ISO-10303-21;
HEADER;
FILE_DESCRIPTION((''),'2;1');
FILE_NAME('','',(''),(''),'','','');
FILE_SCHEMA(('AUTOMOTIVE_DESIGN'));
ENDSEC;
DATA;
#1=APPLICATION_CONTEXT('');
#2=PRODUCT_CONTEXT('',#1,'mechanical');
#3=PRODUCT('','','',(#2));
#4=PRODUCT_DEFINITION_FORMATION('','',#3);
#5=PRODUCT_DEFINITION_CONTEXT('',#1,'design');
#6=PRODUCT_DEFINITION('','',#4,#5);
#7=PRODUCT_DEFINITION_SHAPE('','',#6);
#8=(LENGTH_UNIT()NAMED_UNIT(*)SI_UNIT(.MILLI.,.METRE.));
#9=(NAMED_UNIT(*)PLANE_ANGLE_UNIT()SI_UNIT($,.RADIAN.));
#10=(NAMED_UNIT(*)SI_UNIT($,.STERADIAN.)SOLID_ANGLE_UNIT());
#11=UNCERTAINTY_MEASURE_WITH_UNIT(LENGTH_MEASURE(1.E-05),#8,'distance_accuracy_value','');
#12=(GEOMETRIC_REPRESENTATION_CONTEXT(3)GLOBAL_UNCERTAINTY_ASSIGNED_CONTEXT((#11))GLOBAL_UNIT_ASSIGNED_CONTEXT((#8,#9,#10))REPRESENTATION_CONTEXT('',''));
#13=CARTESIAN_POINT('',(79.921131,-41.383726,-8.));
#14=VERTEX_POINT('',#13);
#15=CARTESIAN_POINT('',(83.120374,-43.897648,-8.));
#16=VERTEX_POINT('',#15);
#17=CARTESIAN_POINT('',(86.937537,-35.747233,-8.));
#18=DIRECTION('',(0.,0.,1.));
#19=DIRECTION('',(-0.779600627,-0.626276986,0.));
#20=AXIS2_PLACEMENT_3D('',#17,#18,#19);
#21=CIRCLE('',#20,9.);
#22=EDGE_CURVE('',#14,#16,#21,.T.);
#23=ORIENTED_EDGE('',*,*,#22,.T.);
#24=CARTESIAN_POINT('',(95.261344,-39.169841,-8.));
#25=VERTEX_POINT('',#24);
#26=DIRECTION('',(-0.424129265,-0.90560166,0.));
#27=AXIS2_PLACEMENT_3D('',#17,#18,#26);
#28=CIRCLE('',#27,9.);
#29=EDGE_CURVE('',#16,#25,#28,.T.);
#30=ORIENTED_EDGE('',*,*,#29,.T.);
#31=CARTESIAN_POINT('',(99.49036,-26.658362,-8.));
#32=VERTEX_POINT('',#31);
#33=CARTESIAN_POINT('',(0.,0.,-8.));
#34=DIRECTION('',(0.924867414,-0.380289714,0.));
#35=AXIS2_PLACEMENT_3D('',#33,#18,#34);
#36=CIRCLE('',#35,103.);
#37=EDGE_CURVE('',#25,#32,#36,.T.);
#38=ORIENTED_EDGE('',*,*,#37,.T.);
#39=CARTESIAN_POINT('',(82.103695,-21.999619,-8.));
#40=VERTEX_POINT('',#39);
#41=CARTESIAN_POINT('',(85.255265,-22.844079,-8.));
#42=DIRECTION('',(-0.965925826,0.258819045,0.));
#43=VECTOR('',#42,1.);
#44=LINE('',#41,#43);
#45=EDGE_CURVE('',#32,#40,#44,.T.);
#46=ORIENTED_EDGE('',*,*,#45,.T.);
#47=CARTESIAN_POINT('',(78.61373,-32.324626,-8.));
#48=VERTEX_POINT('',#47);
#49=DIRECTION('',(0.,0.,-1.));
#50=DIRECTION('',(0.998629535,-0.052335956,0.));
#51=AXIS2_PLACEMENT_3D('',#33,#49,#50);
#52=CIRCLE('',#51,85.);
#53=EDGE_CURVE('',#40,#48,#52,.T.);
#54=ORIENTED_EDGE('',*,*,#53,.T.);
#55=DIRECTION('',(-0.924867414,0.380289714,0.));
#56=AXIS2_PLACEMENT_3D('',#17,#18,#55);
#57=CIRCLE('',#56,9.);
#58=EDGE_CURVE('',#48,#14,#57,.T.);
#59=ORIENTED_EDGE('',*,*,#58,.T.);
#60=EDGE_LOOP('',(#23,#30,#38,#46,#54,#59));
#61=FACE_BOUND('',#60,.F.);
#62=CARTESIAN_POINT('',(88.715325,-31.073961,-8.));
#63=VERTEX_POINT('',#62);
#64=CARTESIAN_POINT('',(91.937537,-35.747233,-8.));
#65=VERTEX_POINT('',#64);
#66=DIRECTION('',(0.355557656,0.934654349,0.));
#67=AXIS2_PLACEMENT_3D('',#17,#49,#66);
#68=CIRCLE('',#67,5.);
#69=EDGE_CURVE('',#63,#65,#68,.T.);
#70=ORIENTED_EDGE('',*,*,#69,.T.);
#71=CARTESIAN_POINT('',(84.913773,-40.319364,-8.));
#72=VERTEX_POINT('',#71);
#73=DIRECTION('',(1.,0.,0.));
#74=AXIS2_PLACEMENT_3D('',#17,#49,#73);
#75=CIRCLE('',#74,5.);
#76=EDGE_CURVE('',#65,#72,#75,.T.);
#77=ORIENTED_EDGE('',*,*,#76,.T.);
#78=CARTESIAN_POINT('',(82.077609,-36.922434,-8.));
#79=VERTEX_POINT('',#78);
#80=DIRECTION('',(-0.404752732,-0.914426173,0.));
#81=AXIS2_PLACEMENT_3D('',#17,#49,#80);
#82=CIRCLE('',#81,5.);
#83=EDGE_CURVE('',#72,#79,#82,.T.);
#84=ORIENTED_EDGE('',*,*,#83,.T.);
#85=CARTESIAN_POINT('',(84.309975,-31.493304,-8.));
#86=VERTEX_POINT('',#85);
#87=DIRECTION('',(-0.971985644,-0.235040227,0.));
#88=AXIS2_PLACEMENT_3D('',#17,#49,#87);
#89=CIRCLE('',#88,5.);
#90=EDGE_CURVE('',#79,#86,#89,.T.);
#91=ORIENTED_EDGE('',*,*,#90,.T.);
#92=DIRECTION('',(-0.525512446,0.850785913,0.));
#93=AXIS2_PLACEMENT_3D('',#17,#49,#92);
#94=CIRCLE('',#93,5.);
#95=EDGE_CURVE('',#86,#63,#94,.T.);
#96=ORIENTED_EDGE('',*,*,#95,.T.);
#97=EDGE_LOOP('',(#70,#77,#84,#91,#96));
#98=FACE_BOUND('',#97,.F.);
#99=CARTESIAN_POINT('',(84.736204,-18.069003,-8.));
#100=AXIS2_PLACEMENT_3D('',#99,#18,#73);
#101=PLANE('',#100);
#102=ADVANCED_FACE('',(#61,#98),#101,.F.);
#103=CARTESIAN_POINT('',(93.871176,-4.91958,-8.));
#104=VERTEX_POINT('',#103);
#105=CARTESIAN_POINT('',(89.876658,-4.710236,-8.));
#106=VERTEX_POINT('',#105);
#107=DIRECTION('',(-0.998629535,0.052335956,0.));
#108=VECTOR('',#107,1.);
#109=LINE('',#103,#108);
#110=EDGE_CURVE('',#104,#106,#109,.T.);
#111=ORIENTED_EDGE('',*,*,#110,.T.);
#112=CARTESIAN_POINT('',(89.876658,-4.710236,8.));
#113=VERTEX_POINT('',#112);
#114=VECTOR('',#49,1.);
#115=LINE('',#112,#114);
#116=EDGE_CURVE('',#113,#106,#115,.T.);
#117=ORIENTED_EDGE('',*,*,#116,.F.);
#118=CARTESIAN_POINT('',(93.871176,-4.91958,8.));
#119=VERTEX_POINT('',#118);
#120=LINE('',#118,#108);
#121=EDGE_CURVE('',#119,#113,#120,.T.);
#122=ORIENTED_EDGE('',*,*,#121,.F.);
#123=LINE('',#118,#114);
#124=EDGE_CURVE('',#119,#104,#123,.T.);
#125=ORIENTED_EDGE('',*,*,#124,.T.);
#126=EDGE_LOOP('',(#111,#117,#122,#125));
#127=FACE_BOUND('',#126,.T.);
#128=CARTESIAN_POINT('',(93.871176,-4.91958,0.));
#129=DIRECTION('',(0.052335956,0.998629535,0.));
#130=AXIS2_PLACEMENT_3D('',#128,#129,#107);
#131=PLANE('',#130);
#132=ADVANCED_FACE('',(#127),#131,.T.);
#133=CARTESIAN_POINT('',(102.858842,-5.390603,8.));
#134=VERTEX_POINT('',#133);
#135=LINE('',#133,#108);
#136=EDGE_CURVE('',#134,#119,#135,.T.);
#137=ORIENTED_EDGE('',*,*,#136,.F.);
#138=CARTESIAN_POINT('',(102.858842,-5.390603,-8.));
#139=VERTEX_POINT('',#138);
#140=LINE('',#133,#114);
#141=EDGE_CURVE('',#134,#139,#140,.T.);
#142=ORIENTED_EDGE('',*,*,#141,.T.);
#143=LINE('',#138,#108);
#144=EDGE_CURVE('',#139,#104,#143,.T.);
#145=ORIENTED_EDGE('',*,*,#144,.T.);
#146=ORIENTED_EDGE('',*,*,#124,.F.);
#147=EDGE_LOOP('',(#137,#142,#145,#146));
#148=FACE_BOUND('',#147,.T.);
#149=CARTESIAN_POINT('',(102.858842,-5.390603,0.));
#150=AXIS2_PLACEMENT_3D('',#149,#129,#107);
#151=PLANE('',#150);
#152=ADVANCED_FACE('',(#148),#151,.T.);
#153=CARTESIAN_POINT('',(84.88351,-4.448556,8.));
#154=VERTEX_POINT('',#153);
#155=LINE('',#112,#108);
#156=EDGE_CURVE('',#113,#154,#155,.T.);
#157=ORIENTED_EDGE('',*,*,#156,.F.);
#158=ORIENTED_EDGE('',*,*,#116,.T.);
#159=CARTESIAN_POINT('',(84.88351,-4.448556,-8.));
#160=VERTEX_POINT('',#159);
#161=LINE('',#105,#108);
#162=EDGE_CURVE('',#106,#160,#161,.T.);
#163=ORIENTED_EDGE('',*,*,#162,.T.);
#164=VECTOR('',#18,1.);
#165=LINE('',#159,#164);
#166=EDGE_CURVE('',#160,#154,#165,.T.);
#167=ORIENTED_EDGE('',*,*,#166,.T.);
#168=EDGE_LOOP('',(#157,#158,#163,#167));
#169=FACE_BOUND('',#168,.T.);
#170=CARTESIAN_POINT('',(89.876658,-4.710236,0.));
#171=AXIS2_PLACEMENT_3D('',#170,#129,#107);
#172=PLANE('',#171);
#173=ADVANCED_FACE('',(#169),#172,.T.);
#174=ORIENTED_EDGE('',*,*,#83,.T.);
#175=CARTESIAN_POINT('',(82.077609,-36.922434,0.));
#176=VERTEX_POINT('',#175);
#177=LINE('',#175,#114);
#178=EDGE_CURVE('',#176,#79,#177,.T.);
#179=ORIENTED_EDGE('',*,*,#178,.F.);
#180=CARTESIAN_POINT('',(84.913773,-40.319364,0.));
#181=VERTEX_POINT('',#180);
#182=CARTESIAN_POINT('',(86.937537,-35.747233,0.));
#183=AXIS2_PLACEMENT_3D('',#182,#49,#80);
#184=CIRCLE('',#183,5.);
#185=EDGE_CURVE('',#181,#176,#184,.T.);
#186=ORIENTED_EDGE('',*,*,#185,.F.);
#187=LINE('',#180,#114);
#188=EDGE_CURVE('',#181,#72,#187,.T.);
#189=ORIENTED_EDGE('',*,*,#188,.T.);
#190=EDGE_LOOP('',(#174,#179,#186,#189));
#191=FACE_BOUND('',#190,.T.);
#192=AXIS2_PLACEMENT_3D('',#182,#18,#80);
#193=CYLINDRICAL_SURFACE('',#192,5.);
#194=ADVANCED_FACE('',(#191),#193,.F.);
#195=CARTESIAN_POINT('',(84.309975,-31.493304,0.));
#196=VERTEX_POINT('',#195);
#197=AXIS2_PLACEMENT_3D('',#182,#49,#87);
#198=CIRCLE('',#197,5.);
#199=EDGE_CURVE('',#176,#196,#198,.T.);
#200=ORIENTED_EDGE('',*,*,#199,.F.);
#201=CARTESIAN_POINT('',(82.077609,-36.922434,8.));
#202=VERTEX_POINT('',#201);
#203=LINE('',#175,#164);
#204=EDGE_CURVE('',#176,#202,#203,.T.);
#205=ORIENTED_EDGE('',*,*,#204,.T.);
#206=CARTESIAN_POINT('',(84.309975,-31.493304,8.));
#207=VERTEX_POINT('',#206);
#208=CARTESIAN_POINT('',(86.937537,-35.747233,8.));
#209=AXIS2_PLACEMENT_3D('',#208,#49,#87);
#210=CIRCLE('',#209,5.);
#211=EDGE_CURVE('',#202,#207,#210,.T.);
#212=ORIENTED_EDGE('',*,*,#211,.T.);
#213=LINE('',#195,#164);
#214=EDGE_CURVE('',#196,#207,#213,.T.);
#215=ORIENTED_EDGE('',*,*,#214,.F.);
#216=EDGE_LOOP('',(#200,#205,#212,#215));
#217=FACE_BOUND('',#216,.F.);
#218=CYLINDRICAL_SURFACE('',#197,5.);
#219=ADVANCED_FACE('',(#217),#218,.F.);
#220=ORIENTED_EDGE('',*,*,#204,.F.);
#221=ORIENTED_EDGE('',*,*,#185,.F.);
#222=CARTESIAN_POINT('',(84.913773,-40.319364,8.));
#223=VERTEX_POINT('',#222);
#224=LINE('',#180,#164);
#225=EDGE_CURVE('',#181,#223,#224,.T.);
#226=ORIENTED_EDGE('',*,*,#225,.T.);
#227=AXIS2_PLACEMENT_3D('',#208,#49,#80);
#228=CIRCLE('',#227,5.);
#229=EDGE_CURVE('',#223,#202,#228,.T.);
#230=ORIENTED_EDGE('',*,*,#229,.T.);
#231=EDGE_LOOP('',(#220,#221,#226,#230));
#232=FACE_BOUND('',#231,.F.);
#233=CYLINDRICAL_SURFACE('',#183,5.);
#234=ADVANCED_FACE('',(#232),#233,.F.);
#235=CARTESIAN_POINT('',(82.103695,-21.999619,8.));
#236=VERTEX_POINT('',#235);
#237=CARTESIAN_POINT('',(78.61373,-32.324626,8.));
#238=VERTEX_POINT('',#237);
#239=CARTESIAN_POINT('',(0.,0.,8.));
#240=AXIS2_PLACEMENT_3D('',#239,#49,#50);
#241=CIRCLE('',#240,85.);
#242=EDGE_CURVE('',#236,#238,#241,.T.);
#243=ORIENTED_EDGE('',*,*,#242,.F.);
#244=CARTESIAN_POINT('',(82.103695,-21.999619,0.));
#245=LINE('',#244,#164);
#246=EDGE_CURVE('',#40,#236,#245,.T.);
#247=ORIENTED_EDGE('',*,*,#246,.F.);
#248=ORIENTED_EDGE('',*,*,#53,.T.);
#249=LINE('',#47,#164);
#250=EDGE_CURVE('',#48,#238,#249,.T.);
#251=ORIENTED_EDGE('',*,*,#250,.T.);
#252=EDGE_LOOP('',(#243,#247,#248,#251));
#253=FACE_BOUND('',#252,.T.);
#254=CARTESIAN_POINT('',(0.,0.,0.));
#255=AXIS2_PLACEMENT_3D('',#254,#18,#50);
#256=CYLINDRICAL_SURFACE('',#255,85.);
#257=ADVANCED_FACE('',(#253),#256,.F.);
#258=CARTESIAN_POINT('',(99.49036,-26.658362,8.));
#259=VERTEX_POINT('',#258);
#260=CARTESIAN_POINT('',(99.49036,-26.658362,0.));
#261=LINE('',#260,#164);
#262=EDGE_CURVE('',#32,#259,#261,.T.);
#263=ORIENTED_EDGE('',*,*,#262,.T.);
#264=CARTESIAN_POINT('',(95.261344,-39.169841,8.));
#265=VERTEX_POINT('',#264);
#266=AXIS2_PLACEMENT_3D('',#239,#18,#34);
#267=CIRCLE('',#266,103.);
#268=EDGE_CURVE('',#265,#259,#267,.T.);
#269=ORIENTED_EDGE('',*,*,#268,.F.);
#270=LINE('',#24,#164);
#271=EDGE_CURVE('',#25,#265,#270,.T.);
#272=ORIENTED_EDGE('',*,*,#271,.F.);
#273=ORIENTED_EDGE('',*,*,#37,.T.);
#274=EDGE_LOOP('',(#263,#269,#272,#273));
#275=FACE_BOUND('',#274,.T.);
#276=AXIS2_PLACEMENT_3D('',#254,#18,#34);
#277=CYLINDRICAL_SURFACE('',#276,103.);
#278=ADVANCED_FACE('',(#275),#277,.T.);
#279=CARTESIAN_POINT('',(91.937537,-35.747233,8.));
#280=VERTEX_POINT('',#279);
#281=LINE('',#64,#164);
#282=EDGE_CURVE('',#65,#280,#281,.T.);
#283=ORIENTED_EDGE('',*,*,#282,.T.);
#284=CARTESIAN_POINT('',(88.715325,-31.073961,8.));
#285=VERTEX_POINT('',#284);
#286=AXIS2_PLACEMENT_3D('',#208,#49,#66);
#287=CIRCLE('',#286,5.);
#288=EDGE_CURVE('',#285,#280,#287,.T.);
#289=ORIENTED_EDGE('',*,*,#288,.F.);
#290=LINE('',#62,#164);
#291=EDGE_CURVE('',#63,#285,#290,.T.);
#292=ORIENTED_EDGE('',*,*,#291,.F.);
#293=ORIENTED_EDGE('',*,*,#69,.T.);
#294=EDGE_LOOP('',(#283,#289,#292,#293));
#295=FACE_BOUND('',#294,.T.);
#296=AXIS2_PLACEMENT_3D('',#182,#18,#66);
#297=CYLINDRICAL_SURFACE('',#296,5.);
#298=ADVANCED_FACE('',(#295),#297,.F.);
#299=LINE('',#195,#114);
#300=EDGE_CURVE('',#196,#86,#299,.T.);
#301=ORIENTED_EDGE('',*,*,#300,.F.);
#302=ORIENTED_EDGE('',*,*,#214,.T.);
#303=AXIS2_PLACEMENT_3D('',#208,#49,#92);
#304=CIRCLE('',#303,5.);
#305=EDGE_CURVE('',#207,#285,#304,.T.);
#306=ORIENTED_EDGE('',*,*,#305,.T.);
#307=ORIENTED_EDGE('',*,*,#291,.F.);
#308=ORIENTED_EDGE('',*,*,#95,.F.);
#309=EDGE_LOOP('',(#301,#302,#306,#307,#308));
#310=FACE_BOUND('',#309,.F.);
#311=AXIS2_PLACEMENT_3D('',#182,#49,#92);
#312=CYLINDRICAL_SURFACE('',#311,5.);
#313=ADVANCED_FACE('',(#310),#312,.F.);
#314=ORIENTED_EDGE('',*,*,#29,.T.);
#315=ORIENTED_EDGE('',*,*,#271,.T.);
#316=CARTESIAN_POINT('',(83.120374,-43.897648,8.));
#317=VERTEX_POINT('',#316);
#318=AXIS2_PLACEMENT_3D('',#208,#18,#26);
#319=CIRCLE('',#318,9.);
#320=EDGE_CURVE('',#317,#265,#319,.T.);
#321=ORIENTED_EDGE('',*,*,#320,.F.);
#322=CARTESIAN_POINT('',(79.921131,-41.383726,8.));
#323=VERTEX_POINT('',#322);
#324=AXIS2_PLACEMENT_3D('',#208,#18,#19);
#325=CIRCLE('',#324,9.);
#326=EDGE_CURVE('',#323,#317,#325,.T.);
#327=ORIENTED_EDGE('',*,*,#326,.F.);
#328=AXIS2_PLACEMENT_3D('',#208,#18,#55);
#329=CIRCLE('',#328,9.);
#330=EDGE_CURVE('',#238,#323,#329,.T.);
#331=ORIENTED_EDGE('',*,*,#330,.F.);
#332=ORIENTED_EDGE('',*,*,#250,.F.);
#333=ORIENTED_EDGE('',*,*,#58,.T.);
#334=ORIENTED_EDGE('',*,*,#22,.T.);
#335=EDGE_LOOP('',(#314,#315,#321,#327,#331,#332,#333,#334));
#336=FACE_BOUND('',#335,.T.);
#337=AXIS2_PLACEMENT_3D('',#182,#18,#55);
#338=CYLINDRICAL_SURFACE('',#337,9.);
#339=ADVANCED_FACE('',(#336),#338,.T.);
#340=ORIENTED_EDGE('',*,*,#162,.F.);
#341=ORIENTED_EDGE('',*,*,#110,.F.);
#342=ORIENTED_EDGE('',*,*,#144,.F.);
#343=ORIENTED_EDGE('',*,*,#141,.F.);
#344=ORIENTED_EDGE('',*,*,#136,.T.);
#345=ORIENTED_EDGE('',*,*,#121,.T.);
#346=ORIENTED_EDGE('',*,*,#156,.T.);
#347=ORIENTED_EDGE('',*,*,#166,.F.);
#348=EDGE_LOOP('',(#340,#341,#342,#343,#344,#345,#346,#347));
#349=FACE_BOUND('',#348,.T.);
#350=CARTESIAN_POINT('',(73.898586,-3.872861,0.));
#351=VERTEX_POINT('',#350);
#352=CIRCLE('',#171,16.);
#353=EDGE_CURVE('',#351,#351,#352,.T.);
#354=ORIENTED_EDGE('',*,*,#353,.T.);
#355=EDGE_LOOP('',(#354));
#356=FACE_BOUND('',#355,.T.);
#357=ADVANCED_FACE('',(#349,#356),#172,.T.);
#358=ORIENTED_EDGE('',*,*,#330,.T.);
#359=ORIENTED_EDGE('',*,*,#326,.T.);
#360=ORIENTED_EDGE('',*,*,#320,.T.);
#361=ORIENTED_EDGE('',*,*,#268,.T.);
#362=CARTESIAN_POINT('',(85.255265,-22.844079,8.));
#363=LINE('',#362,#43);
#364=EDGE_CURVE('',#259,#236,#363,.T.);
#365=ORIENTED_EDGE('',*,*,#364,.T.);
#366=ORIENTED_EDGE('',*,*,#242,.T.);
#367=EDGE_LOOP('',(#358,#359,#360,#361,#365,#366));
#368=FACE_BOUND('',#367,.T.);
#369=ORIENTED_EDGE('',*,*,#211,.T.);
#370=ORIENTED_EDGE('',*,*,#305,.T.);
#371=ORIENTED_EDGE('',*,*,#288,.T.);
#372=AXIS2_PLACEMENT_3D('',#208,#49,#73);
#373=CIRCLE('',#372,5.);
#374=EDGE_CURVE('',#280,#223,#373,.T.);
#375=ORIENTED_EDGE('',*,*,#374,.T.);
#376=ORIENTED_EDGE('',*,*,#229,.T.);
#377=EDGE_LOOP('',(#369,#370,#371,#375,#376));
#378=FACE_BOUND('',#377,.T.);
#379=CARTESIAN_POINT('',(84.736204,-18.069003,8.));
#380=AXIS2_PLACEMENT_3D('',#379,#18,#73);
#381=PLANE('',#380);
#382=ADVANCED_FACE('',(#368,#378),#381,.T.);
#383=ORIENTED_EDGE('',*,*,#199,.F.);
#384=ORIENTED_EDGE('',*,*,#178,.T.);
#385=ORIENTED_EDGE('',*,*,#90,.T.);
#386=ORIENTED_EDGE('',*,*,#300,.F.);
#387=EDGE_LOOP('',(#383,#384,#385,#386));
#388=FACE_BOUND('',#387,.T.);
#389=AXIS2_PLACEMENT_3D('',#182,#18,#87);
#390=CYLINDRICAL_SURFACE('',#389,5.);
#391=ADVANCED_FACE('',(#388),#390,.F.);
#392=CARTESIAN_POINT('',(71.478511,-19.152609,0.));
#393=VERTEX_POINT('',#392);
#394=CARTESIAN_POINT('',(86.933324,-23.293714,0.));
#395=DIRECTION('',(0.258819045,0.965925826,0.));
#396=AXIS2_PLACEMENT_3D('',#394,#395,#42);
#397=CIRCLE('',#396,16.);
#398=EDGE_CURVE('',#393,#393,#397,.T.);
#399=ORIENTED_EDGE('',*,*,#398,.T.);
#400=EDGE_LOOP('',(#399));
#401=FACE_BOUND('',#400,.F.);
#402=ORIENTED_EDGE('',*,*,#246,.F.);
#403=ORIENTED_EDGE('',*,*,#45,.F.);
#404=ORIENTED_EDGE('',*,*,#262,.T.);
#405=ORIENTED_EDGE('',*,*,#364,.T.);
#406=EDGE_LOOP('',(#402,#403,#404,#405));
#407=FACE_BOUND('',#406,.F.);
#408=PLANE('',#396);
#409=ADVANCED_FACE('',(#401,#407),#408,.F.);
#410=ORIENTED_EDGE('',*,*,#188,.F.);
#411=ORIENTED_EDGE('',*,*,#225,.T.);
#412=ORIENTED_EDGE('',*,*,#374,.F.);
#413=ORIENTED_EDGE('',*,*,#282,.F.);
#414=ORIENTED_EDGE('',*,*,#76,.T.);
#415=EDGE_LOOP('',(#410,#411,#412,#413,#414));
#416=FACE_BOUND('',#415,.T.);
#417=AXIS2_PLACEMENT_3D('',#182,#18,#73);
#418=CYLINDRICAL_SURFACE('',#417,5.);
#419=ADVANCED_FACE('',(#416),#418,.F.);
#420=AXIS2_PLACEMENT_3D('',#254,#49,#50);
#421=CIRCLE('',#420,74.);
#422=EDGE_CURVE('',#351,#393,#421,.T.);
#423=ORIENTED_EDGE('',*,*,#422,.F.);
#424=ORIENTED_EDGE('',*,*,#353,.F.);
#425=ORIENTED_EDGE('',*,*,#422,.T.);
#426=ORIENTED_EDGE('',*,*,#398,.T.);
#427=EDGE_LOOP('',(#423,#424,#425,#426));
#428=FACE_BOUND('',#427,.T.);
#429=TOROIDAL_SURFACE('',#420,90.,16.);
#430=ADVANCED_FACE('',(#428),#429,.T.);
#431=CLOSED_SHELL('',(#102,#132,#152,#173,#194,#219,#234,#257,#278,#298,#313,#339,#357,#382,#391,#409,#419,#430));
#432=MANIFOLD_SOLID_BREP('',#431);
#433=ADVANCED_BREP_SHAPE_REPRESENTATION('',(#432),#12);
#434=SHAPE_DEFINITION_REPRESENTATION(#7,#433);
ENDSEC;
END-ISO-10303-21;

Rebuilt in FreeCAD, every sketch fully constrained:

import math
import FreeCAD as App
import Part
import Sketcher
Q = App.Units.Quantity

doc = App.newDocument("Part")
body = doc.addObject("PartDesign::Body", "Body")

sketch1 = body.newObject("Sketcher::SketchObject", "Sketch")
sketch1.AttachmentSupport = (doc.getObject("XY_Plane"), [""])
sketch1.MapMode = "FlatFace"
sketch1.addGeometry([
    Part.LineSegment(App.Vector(89.9, -4.7, 0), App.Vector(84.9, -4.4, 0)),
    Part.ArcOfCircle(Part.Circle(App.Vector(0, 0, 0), App.Vector(0, 0, 1), 85), math.radians(-22.35), math.radians(-3)),
    Part.ArcOfCircle(Part.Circle(App.Vector(86.9, -35.7, 0), App.Vector(0, 0, 1), 9), math.radians(158), math.radians(219)),
    Part.ArcOfCircle(Part.Circle(App.Vector(86.9, -35.7, 0), App.Vector(0, 0, 1), 9), math.radians(-141), math.radians(-115)),
    Part.ArcOfCircle(Part.Circle(App.Vector(86.9, -35.7, 0), App.Vector(0, 0, 1), 9), math.radians(-115), math.radians(-22)),
    Part.ArcOfCircle(Part.Circle(App.Vector(0, 0, 0), App.Vector(0, 0, 1), 103), math.radians(-22.35), math.radians(-3)),
    Part.LineSegment(App.Vector(102.9, -5.4, 0), App.Vector(93.9, -4.9, 0)),
    Part.LineSegment(App.Vector(93.9, -4.9, 0), App.Vector(89.9, -4.7, 0)),
    Part.ArcOfCircle(Part.Circle(App.Vector(86.9, -35.7, 0), App.Vector(0, 0, 1), 5), math.radians(0), math.radians(69)),
    Part.ArcOfCircle(Part.Circle(App.Vector(86.9, -35.7, 0), App.Vector(0, 0, 1), 5), math.radians(-114), math.radians(0)),
    Part.ArcOfCircle(Part.Circle(App.Vector(86.9, -35.7, 0), App.Vector(0, 0, 1), 5), math.radians(-166), math.radians(-114)),
    Part.ArcOfCircle(Part.Circle(App.Vector(86.9, -35.7, 0), App.Vector(0, 0, 1), 5), math.radians(122), math.radians(194)),
    Part.ArcOfCircle(Part.Circle(App.Vector(86.9, -35.7, 0), App.Vector(0, 0, 1), 5), math.radians(69), math.radians(122)),
], False)
sketch1.addConstraint([
    Sketcher.Constraint("Coincident", 0, 2, 1, 2),
    Sketcher.Constraint("Tangent", 1, 1, 2, 1),
    Sketcher.Constraint("Tangent", 2, 2, 3, 1),
    Sketcher.Constraint("Tangent", 3, 2, 4, 1),
    Sketcher.Constraint("Tangent", 4, 2, 5, 1),
    Sketcher.Constraint("Coincident", 5, 2, 6, 1),
    Sketcher.Constraint("Coincident", 6, 2, 7, 1),
    Sketcher.Constraint("Coincident", 7, 2, 0, 1),
    Sketcher.Constraint("Tangent", 8, 1, 9, 2),
    Sketcher.Constraint("Tangent", 9, 1, 10, 2),
    Sketcher.Constraint("Tangent", 10, 1, 11, 2),
    Sketcher.Constraint("Tangent", 11, 1, 12, 2),
    Sketcher.Constraint("Tangent", 12, 1, 8, 2),
    Sketcher.Constraint("Coincident", 1, 3, -1, 1),
    Sketcher.Constraint("Coincident", 5, 3, -1, 1),
    Sketcher.Constraint("Coincident", 4, 3, 2, 3),
    Sketcher.Constraint("Coincident", 8, 3, 2, 3),
    Sketcher.Constraint("Coincident", 10, 3, 2, 3),
    Sketcher.Constraint("Parallel", 0, 6),
    Sketcher.Constraint("Parallel", 6, 7),
    Sketcher.Constraint("Horizontal", 12, 3, 8, 1),
    Sketcher.Constraint("Radius", 1, Q("85 mm")),
    Sketcher.Constraint("Radius", 2, Q("9 mm")),
    Sketcher.Constraint("Radius", 8, Q("5 mm")),
    Sketcher.Constraint("Angle", 0, Q("177 deg")),
    Sketcher.Constraint("Distance", 0, Q("5 mm")),
    Sketcher.Constraint("Distance", 6, Q("9 mm")),
    Sketcher.Constraint("DistanceX", 3, 2, 9, 1, Q("1.7934 mm")),
    Sketcher.Constraint("DistanceY", 10, 1, 3, 3, Q("1.175201 mm")),
    Sketcher.Constraint("DistanceX", -1, 1, 0, 2, Q("84.88351 mm")),
    Sketcher.Constraint("DistanceX", -1, 1, 1, 1, Q("78.61373 mm")),
    Sketcher.Constraint("DistanceX", -1, 1, 2, 2, Q("79.921131 mm")),
    Sketcher.Constraint("DistanceY", 3, 2, -1, 1, Q("43.897648 mm")),
    Sketcher.Constraint("DistanceY", 12, 1, -1, 1, Q("31.073961 mm")),
    Sketcher.Constraint("DistanceY", 2, 3, 11, 1, Q("4.25393 mm")),
])
pad1 = body.newObject("PartDesign::Pad", "Pad")
pad1.Profile = sketch1
pad1.Length = 16
pad1.Midplane = True

sketch2 = body.newObject("Sketcher::SketchObject", "Sketch001")
sketch2.Placement = App.Placement(App.Vector(0, 0, 0), App.Rotation(App.Vector(-0.998629535, 0.052335956, 0), App.Vector(0, 0, 1), App.Vector(0.052335956, 0.998629535, 0), "ZXY"))
sketch2.addGeometry(Part.Circle(App.Vector(-90, 0, 0), App.Vector(0, 0, 1), 16), False)
sketch2.addConstraint([
    Sketcher.Constraint("PointOnObject", 0, 3, -1),
    Sketcher.Constraint("Diameter", 0, Q("32 mm")),
    Sketcher.Constraint("DistanceX", 0, 3, -1, 1, Q("90 mm")),
])
revolution = body.newObject("PartDesign::Revolution", "Revolution")
revolution.Profile = sketch2
revolution.ReferenceAxis = (sketch2, ["V_Axis"])
revolution.Angle = 12
revolution.Reversed = True

doc.recompute()
